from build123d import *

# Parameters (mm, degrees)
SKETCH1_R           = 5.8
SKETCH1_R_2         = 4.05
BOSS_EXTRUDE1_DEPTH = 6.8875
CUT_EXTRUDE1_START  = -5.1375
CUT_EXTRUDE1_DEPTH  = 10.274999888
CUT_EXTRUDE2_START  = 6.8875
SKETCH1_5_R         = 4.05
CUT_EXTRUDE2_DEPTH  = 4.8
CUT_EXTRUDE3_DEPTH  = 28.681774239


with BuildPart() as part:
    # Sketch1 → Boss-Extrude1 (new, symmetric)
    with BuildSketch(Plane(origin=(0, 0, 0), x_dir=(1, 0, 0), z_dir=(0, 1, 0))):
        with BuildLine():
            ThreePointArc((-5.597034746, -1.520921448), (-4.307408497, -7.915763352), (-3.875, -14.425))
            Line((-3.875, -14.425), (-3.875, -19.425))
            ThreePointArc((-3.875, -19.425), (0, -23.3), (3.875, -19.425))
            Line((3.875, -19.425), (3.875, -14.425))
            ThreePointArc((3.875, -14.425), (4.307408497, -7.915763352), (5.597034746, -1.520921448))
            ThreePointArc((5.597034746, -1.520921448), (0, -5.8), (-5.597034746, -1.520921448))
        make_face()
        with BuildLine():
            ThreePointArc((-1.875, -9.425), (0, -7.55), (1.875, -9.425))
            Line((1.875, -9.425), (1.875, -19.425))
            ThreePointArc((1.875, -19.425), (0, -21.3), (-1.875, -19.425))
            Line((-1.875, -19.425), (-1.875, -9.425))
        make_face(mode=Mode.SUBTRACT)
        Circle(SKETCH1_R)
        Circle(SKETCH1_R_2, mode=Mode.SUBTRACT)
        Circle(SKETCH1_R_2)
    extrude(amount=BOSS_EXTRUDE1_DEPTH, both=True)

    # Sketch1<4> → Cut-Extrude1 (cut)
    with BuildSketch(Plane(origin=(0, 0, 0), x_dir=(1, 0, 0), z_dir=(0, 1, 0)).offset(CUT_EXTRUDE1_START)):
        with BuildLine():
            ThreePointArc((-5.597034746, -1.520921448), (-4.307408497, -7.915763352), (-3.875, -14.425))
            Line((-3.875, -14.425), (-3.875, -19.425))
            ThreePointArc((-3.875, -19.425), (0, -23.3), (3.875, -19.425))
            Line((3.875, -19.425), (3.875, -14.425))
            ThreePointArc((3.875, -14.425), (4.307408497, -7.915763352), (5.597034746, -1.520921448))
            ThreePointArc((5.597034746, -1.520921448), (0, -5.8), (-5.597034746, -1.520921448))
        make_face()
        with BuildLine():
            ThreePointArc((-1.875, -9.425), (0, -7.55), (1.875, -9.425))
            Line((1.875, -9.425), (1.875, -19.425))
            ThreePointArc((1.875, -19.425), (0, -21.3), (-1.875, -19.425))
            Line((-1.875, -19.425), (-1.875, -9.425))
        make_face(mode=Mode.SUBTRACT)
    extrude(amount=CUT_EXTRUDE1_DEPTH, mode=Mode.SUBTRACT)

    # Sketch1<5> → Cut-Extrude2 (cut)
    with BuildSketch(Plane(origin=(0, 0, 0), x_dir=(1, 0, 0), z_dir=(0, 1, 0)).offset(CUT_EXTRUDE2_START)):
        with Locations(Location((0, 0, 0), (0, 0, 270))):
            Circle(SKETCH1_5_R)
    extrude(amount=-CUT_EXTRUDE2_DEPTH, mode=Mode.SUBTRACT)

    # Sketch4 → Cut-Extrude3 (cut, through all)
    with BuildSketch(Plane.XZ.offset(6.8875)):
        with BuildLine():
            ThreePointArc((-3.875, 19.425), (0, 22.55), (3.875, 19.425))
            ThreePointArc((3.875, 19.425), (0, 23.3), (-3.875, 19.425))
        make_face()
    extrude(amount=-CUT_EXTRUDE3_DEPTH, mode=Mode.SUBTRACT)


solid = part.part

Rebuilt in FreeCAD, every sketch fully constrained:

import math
import FreeCAD as App
import Part
import Sketcher
Q = App.Units.Quantity

doc = App.newDocument("Part")
params = doc.addObject("Spreadsheet::Sheet", "Params")
for row, (alias, value) in enumerate([
    ("sketch1_radius", "5.8 mm"),
    ("sketch1_height", "5 mm"),
    ("sketch1_height2", "10 mm"),
    ("pad1_length", "13.775 mm"),
    ("sketch2_radius", "5.8 mm"),
    ("sketch2_height", "5 mm"),
    ("sketch2_height2", "10 mm"),
    ("pocket1_length", "10.275 mm"),
    ("sketch3_diameter", "8.1 mm"),
    ("pocket2_length", "4.8 mm"),
], start=1):
    params.set(f"A{row}", alias)
    params.set(f"B{row}", "=" + value)
    params.setAlias(f"B{row}", alias)

body = doc.addObject("PartDesign::Body", "Body")

sketch1 = doc.addObject("Sketcher::SketchObject", "Sketch")
body.addObject(sketch1)
sketch1.AttachmentSupport = (doc.XZ_Plane, [""])
sketch1.MapMode = "FlatFace"
sketch1.addGeometry(Part.ArcOfCircle(Part.Circle(App.Vector(-53.1, 14.4, 0), App.Vector(0, 0, 1), 49.2), math.radians(-15.2), math.radians(0)), False)
sketch1.addGeometry(Part.LineSegment(App.Vector(-3.9, 14.4, 0), App.Vector(-3.9, 19.4, 0)), False)
sketch1.addGeometry(Part.ArcOfCircle(Part.Circle(App.Vector(0, 19.4, 0), App.Vector(0, 0, 1), 3.9), math.radians(0), math.radians(180)), False)
sketch1.addGeometry(Part.LineSegment(App.Vector(3.9, 19.4, 0), App.Vector(3.9, 14.4, 0)), False)
sketch1.addGeometry(Part.ArcOfCircle(Part.Circle(App.Vector(53.1, 14.4, 0), App.Vector(0, 0, 1), 49.2), math.radians(-180), math.radians(-164.8)), False)
sketch1.addGeometry(Part.ArcOfCircle(Part.Circle(App.Vector(0, 0, 0), App.Vector(0, 0, 1), 5.8), math.radians(165), math.radians(375)), False)
sketch1.addGeometry(Part.LineSegment(App.Vector(-1.9, 19.4, 0), App.Vector(-1.9, 9.4, 0)), False)
sketch1.addGeometry(Part.ArcOfCircle(Part.Circle(App.Vector(0, 9.4, 0), App.Vector(0, 0, 1), 1.9), math.radians(180), math.radians(360)), False)
sketch1.addGeometry(Part.LineSegment(App.Vector(1.9, 9.4, 0), App.Vector(1.9, 19.4, 0)), False)
sketch1.addGeometry(Part.ArcOfCircle(Part.Circle(App.Vector(0, 19.4, 0), App.Vector(0, 0, 1), 1.9), math.radians(0), math.radians(180)), False)
sketch1.addConstraint(Sketcher.Constraint("Tangent", 0, 2, 1, 1))
sketch1.addConstraint(Sketcher.Constraint("Tangent", 1, 2, 2, 2))
sketch1.addConstraint(Sketcher.Constraint("Tangent", 2, 1, 3, 1))
sketch1.addConstraint(Sketcher.Constraint("Tangent", 3, 2, 4, 1))
sketch1.addConstraint(Sketcher.Constraint("Tangent", 4, 2, 5, 2))
sketch1.addConstraint(Sketcher.Constraint("Tangent", 5, 1, 0, 1))
sketch1.addConstraint(Sketcher.Constraint("Tangent", 6, 2, 7, 1))
sketch1.addConstraint(Sketcher.Constraint("Tangent", 7, 2, 8, 1))
sketch1.addConstraint(Sketcher.Constraint("Tangent", 8, 2, 9, 1))
sketch1.addConstraint(Sketcher.Constraint("Tangent", 9, 2, 6, 1))
sketch1.addConstraint(Sketcher.Constraint("Vertical", 1))
sketch1.addConstraint(Sketcher.Constraint("Vertical", 3))
sketch1.addConstraint(Sketcher.Constraint("Vertical", 6))
sketch1.addConstraint(Sketcher.Constraint("Vertical", 8))
sketch1.addConstraint(Sketcher.Constraint("Coincident", 5, 3, -1, 1))
sketch1.addConstraint(Sketcher.Constraint("Coincident", 9, 3, 2, 3))
sketch1.addConstraint(Sketcher.Constraint("Equal", 0, 4))
sketch1.addConstraint(Sketcher.Constraint("PointOnObject", 2, 3, -2))
sketch1.addConstraint(Sketcher.Constraint("Radius", 5, Q("5.8 mm")))
sketch1.addConstraint(Sketcher.Constraint("DistanceY", 1, 1, 1, 2, Q("5 mm")))
sketch1.addConstraint(Sketcher.Constraint("DistanceY", 6, 2, 6, 1, Q("10 mm")))
sketch1.addConstraint(Sketcher.Constraint("Radius", 2, Q("3.875 mm")))
sketch1.addConstraint(Sketcher.Constraint("Radius", 7, Q("1.875 mm")))
sketch1.addConstraint(Sketcher.Constraint("DistanceY", -1, 1, 0, 3, Q("14.425 mm")))
sketch1.setExpression("Constraints[18]", "Params.sketch1_radius")
sketch1.setExpression("Constraints[19]", "Params.sketch1_height")
sketch1.setExpression("Constraints[20]", "Params.sketch1_height2")
pad1 = doc.addObject("PartDesign::Pad", "Pad")
body.addObject(pad1)
pad1.Profile = sketch1
pad1.setExpression("Length", "Params.pad1_length")
pad1.Midplane = True

sketch2 = doc.addObject("Sketcher::SketchObject", "Sketch001")
body.addObject(sketch2)
sketch2.AttachmentSupport = (doc.XZ_Plane, [""])
sketch2.MapMode = "FlatFace"
sketch2.AttachmentOffset = App.Placement(App.Vector(0, 0, 5.1375), App.Rotation())
sketch2.addGeometry(Part.ArcOfCircle(Part.Circle(App.Vector(-53.1, 14.4, 0), App.Vector(0, 0, 1), 49.2), math.radians(-15.2), math.radians(0)), False)
sketch2.addGeometry(Part.LineSegment(App.Vector(-3.9, 14.4, 0), App.Vector(-3.9, 19.4, 0)), False)
sketch2.addGeometry(Part.ArcOfCircle(Part.Circle(App.Vector(0, 19.4, 0), App.Vector(0, 0, 1), 3.9), math.radians(0), math.radians(180)), False)
sketch2.addGeometry(Part.LineSegment(App.Vector(3.9, 19.4, 0), App.Vector(3.9, 14.4, 0)), False)
sketch2.addGeometry(Part.ArcOfCircle(Part.Circle(App.Vector(53.1, 14.4, 0), App.Vector(0, 0, 1), 49.2), math.radians(-180), math.radians(-164.8)), False)
sketch2.addGeometry(Part.ArcOfCircle(Part.Circle(App.Vector(0, 0, 0), App.Vector(0, 0, 1), 5.8), math.radians(15), math.radians(165)), False)
sketch2.addGeometry(Part.LineSegment(App.Vector(-1.9, 19.4, 0), App.Vector(-1.9, 9.4, 0)), False)
sketch2.addGeometry(Part.ArcOfCircle(Part.Circle(App.Vector(0, 9.4, 0), App.Vector(0, 0, 1), 1.9), math.radians(180), math.radians(360)), False)
sketch2.addGeometry(Part.LineSegment(App.Vector(1.9, 9.4, 0), App.Vector(1.9, 19.4, 0)), False)
sketch2.addGeometry(Part.ArcOfCircle(Part.Circle(App.Vector(0, 19.4, 0), App.Vector(0, 0, 1), 1.9), math.radians(0), math.radians(180)), False)
sketch2.addConstraint(Sketcher.Constraint("Tangent", 0, 2, 1, 1))
sketch2.addConstraint(Sketcher.Constraint("Tangent", 1, 2, 2, 2))
sketch2.addConstraint(Sketcher.Constraint("Tangent", 2, 1, 3, 1))
sketch2.addConstraint(Sketcher.Constraint("Tangent", 3, 2, 4, 1))
sketch2.addConstraint(Sketcher.Constraint("Tangent", 4, 2, 5, 1))
sketch2.addConstraint(Sketcher.Constraint("Tangent", 5, 2, 0, 1))
sketch2.addConstraint(Sketcher.Constraint("Tangent", 6, 2, 7, 1))
sketch2.addConstraint(Sketcher.Constraint("Tangent", 7, 2, 8, 1))
sketch2.addConstraint(Sketcher.Constraint("Tangent", 8, 2, 9, 1))
sketch2.addConstraint(Sketcher.Constraint("Tangent", 9, 2, 6, 1))
sketch2.addConstraint(Sketcher.Constraint("Vertical", 1))
sketch2.addConstraint(Sketcher.Constraint("Vertical", 3))
sketch2.addConstraint(Sketcher.Constraint("Vertical", 6))
sketch2.addConstraint(Sketcher.Constraint("Vertical", 8))
sketch2.addConstraint(Sketcher.Constraint("Coincident", 5, 3, -1, 1))
sketch2.addConstraint(Sketcher.Constraint("Coincident", 9, 3, 2, 3))
sketch2.addConstraint(Sketcher.Constraint("Equal", 0, 4))
sketch2.addConstraint(Sketcher.Constraint("PointOnObject", 2, 3, -2))
sketch2.addConstraint(Sketcher.Constraint("Radius", 5, Q("5.8 mm")))
sketch2.addConstraint(Sketcher.Constraint("DistanceY", 1, 1, 1, 2, Q("5 mm")))
sketch2.addConstraint(Sketcher.Constraint("DistanceY", 6, 2, 6, 1, Q("10 mm")))
sketch2.addConstraint(Sketcher.Constraint("Radius", 2, Q("3.875 mm")))
sketch2.addConstraint(Sketcher.Constraint("Radius", 7, Q("1.875 mm")))
sketch2.addConstraint(Sketcher.Constraint("DistanceY", -1, 1, 0, 3, Q("14.425 mm")))
sketch2.setExpression("Constraints[18]", "Params.sketch2_radius")
sketch2.setExpression("Constraints[19]", "Params.sketch2_height")
sketch2.setExpression("Constraints[20]", "Params.sketch2_height2")
pocket1 = doc.addObject("PartDesign::Pocket", "Pocket")
body.addObject(pocket1)
pocket1.Profile = sketch2
pocket1.setExpression("Length", "Params.pocket1_length")

sketch3 = doc.addObject("Sketcher::SketchObject", "Sketch002")
body.addObject(sketch3)
sketch3.AttachmentSupport = (doc.XZ_Plane, [""])
sketch3.MapMode = "FlatFace"
sketch3.AttachmentOffset = App.Placement(App.Vector(0, 0, -6.8875), App.Rotation())
sketch3.addGeometry(Part.Circle(App.Vector(0, 0, 0), App.Vector(0, 0, 1), 4), False)
sketch3.addConstraint(Sketcher.Constraint("Coincident", 0, 3, -1, 1))
sketch3.addConstraint(Sketcher.Constraint("Diameter", 0, Q("8.1 mm")))
sketch3.setExpression("Constraints[1]", "Params.sketch3_diameter")
pocket2 = doc.addObject("PartDesign::Pocket", "Pocket001")
body.addObject(pocket2)
pocket2.Profile = sketch3
pocket2.setExpression("Length", "Params.pocket2_length")
pocket2.Reversed = True

sketch4 = doc.addObject("Sketcher::SketchObject", "Sketch003")
body.addObject(sketch4)
sketch4.AttachmentSupport = (doc.XZ_Plane, [""])
sketch4.MapMode = "FlatFace"
sketch4.AttachmentOffset = App.Placement(App.Vector(0, 0, 6.8875), App.Rotation())
sketch4.addGeometry(Part.ArcOfCircle(Part.Circle(App.Vector(0, 18.6, 0), App.Vector(0, 0, 1), 4), math.radians(12), math.radians(168)), False)
sketch4.addGeometry(Part.ArcOfCircle(Part.Circle(App.Vector(0, 19.4, 0), App.Vector(0, 0, 1), 3.9), math.radians(0), math.radians(180)), False)
sketch4.addConstraint(Sketcher.Constraint("Coincident", 0, 1, 1, 1))
sketch4.addConstraint(Sketcher.Constraint("Coincident", 1, 2, 0, 2))
sketch4.addConstraint(Sketcher.Constraint("Symmetric", 0, 1, 1, 2, -2))
sketch4.addConstraint(Sketcher.Constraint("Horizontal", 1, 3, 0, 1))
sketch4.addConstraint(Sketcher.Constraint("Radius", 0, Q("3.965 mm")))
sketch4.addConstraint(Sketcher.Constraint("Radius", 1, Q("3.875 mm")))
sketch4.addConstraint(Sketcher.Constraint("DistanceY", -1, 1, 0, 3, Q("18.585 mm")))
pocket3 = doc.addObject("PartDesign::Pocket", "Pocket002")
body.addObject(pocket3)
pocket3.Profile = sketch4
pocket3.Type = "ThroughAll"

doc.recompute()
